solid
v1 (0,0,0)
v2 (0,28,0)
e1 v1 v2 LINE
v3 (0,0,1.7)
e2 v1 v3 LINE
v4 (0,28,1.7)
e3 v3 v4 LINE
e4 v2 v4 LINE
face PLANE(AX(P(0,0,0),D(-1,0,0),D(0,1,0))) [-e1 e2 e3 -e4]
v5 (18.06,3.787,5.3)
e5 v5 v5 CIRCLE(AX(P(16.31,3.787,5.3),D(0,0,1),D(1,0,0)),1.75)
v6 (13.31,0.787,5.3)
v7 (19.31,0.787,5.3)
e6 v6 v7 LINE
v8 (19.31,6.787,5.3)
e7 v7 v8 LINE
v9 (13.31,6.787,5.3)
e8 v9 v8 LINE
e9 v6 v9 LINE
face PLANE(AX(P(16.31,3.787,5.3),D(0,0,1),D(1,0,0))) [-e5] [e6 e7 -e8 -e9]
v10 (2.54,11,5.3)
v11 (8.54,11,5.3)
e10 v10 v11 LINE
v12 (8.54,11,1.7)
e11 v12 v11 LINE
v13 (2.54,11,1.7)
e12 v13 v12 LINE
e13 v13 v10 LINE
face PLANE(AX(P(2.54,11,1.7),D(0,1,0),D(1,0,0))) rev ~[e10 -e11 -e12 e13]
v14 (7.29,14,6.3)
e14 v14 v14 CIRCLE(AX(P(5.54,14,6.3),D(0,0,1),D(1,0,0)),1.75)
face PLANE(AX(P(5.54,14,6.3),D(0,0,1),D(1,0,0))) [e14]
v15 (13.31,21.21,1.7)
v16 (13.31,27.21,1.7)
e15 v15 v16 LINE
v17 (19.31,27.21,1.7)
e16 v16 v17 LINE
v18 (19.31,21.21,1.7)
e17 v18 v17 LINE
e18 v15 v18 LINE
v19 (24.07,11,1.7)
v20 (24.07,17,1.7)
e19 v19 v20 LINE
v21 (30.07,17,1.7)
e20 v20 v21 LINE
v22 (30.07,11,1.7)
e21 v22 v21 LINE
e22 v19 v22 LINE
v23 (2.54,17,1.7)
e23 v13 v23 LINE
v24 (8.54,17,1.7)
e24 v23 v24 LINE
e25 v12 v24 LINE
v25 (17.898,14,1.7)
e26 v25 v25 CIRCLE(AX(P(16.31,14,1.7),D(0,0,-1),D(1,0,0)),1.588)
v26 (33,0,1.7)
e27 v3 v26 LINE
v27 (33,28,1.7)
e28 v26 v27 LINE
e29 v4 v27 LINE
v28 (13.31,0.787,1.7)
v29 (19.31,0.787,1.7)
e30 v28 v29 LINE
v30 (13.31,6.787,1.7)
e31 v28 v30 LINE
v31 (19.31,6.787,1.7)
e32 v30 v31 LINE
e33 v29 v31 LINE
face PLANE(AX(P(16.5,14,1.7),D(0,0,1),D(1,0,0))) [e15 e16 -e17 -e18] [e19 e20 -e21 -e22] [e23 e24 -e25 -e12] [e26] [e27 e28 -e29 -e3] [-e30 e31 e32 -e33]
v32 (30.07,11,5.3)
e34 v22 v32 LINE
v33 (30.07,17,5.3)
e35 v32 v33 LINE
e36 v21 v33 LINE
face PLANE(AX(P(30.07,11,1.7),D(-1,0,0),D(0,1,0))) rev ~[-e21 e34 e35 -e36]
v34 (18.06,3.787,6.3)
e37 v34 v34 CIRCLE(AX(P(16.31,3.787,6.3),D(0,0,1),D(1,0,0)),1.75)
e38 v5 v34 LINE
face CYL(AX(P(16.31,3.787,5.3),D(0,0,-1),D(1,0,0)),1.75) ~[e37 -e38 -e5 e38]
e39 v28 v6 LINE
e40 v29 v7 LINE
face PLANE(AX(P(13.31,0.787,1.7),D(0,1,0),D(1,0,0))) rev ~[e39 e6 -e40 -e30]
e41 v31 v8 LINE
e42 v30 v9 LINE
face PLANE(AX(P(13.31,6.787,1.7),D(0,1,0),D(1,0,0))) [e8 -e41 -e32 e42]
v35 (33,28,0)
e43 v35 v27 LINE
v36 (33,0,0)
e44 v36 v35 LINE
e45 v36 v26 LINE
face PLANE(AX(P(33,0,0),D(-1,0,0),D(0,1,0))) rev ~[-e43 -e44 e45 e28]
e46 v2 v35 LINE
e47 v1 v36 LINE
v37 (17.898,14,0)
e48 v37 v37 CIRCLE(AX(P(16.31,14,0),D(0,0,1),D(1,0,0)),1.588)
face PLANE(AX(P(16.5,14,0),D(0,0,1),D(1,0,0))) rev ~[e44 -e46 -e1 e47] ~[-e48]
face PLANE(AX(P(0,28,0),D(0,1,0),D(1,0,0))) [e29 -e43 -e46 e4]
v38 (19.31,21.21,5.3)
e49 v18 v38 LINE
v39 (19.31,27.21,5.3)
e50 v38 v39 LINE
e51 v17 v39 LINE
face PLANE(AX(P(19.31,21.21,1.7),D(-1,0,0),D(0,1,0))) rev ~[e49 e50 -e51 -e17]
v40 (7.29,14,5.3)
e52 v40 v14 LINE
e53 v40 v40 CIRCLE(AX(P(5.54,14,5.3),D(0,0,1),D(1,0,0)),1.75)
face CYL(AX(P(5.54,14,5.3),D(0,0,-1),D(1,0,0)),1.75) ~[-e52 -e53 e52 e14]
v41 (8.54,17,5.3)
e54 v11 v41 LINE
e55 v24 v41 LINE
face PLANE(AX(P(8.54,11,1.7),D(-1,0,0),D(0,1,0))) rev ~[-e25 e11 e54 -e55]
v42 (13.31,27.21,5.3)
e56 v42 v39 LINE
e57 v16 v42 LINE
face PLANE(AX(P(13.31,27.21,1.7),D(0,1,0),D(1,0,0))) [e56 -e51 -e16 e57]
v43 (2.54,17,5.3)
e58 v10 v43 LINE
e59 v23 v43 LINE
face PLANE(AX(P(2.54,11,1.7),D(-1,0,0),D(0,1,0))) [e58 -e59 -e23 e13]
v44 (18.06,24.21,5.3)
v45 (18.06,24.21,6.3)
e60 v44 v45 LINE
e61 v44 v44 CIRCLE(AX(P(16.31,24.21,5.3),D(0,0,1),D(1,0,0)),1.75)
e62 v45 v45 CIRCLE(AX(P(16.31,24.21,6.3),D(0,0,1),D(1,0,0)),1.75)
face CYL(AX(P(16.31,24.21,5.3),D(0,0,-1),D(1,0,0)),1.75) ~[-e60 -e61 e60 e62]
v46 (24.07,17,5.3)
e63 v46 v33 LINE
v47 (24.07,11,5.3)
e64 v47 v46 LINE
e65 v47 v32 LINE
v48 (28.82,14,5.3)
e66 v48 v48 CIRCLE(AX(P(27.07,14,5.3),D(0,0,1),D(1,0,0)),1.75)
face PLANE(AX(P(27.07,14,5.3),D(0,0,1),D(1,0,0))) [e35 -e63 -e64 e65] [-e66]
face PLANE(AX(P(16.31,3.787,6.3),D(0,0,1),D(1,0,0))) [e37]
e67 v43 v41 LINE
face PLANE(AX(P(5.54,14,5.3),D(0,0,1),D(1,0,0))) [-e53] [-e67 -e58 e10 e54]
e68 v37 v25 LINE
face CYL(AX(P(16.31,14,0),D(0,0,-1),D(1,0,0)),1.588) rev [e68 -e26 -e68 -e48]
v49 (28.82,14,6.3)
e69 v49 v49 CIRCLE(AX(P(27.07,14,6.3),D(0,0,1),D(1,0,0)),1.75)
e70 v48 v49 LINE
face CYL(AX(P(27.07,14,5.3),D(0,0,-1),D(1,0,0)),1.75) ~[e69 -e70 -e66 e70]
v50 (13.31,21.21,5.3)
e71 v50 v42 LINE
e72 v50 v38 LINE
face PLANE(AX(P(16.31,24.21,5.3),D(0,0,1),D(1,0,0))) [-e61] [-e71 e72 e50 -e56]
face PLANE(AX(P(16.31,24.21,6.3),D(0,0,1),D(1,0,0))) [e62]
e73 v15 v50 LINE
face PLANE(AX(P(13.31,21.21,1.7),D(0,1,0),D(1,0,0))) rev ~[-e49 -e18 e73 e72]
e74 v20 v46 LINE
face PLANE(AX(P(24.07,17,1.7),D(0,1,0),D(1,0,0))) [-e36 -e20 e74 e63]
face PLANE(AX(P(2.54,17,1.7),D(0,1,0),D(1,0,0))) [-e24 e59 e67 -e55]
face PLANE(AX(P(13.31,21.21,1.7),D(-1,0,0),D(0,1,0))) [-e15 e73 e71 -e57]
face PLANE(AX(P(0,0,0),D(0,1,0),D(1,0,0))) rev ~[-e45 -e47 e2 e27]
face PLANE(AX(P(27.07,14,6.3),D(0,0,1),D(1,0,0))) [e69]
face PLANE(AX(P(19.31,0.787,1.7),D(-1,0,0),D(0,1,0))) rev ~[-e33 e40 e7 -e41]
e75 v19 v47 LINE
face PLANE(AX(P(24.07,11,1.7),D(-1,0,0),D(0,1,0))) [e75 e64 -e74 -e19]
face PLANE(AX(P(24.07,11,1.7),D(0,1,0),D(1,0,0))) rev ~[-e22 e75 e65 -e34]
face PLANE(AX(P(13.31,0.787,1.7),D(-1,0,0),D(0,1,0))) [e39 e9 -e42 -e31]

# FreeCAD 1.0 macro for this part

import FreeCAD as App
import Part
import Sketcher

V = App.Vector
Q = App.Units.Quantity


def add_polygon(sketch, points):
    """Adds a closed chain of lines whose ends are joined by coincident constraints."""
    first, n = sketch.GeometryCount, len(points)
    for a, b in zip(points, points[1:] + points[:1]):
        sketch.addGeometry(Part.LineSegment(App.Vector(*a, 0), App.Vector(*b, 0)), False)
    for i in range(n):
        sketch.addConstraint(Sketcher.Constraint("Coincident", first + i, 2, first + (i + 1) % n, 1))

doc = App.newDocument("Part")
params = doc.addObject("Spreadsheet::Sheet", "Params")
for row, (alias, value) in enumerate([
    ("sketch1_diameter", "3.5 mm"),
    ("pad1_length", "1 mm"),
    ("sketch2_width", "6 mm"),
    ("pad2_length", "3.6 mm"),
    ("sketch3_diameter", "3.5 mm"),
    ("pad3_length", "1 mm"),
    ("sketch4_width", "6 mm"),
    ("pad4_length", "3.6 mm"),
    ("sketch5_diameter", "3.5 mm"),
    ("pad5_length", "1 mm"),
    ("sketch6_width", "6 mm"),
    ("pad6_length", "3.6 mm"),
    ("pad7_length", "2 mm"),
    ("sketch8_width", "33 mm"),
    ("sketch8_height", "28 mm"),
    ("pad8_length", "1.7 mm"),
    ("sketch9_diameter", "3.5 mm"),
    ("pad9_length", "1 mm"),
    ("sketch10_width", "6 mm"),
    ("pad10_length", "3.6 mm"),
], start=1):
    params.set(f"A{row}", alias)
    params.set(f"B{row}", "=" + value)
    params.setAlias(f"B{row}", alias)

body = doc.addObject("PartDesign::Body", "Body")

sketch1 = body.newObject("Sketcher::SketchObject", "Sketch")
sketch1.AttachmentSupport = (doc.getObject("XY_Plane"), [""])
sketch1.MapMode = "FlatFace"
sketch1.AttachmentOffset = App.Placement(V(0, 0, 3.6), App.Rotation())
sketch1.addGeometry(Part.Circle(V(3, 3, 0), V(0, 0, 1), 1.8), False)
sketch1.addConstraint(Sketcher.Constraint("Diameter", 0, Q("3.5 mm")))
sketch1.addConstraint(Sketcher.Constraint("DistanceX", -1, 1, 0, 3, Q("3 mm")))
sketch1.addConstraint(Sketcher.Constraint("DistanceY", -1, 1, 0, 3, Q("3 mm")))
sketch1.setExpression("Constraints[0]", "Params.sketch1_diameter")
pad1 = body.newObject("PartDesign::Pad", "Pad")
pad1.Profile = sketch1
pad1.setExpression("Length", "Params.pad1_length")
body2 = doc.addObject("PartDesign::Body", "Body001")

sketch2 = body2.newObject("Sketcher::SketchObject", "Sketch001")
sketch2.AttachmentSupport = (doc.getObject("XY_Plane001"), [""])
sketch2.MapMode = "FlatFace"
add_polygon(sketch2, [(0, 6), (0, 0), (6, 0), (6, 6)])
sketch2.addConstraint(Sketcher.Constraint("Vertical", 0))
sketch2.addConstraint(Sketcher.Constraint("Horizontal", 1))
sketch2.addConstraint(Sketcher.Constraint("Vertical", 2))
sketch2.addConstraint(Sketcher.Constraint("Horizontal", 3))
sketch2.addConstraint(Sketcher.Constraint("Coincident", 0, 2, -1, 1))
sketch2.addConstraint(Sketcher.Constraint("Equal", 3, 0))
sketch2.addConstraint(Sketcher.Constraint("DistanceX", 1, 1, 1, 2, Q("6 mm")))
sketch2.setExpression("Constraints[10]", "Params.sketch2_width")
pad2 = body2.newObject("PartDesign::Pad", "Pad001")
pad2.Profile = sketch2
pad2.setExpression("Length", "Params.pad2_length")
doc.recompute()

boolean = body2.newObject("PartDesign::Boolean", "Boolean")
boolean.Type = "Fuse"
boolean.addObjects([body])
body3 = doc.addObject("PartDesign::Body", "Body002")
doc.recompute()

body2.Placement = App.Placement(V(24.07, 11, 1.7), App.Rotation(V(0, 0, 1), 0))
boolean2 = body3.newObject("PartDesign::Boolean", "Boolean001")
boolean2.Type = "Fuse"
boolean2.addObjects([body2])
body4 = doc.addObject("PartDesign::Body", "Body003")

sketch3 = body4.newObject("Sketcher::SketchObject", "Sketch002")
sketch3.AttachmentSupport = (doc.getObject("XY_Plane003"), [""])
sketch3.MapMode = "FlatFace"
sketch3.AttachmentOffset = App.Placement(V(0, 0, 3.6), App.Rotation())
sketch3.addGeometry(Part.Circle(V(3, 3, 0), V(0, 0, 1), 1.8), False)
sketch3.addConstraint(Sketcher.Constraint("Diameter", 0, Q("3.5 mm")))
sketch3.addConstraint(Sketcher.Constraint("DistanceX", -1, 1, 0, 3, Q("3 mm")))
sketch3.addConstraint(Sketcher.Constraint("DistanceY", -1, 1, 0, 3, Q("3 mm")))
sketch3.setExpression("Constraints[0]", "Params.sketch3_diameter")
pad3 = body4.newObject("PartDesign::Pad", "Pad002")
pad3.Profile = sketch3
pad3.setExpression("Length", "Params.pad3_length")
body5 = doc.addObject("PartDesign::Body", "Body004")

sketch4 = body5.newObject("Sketcher::SketchObject", "Sketch003")
sketch4.AttachmentSupport = (doc.getObject("XY_Plane004"), [""])
sketch4.MapMode = "FlatFace"
add_polygon(sketch4, [(0, 6), (0, 0), (6, 0), (6, 6)])
sketch4.addConstraint(Sketcher.Constraint("Vertical", 0))
sketch4.addConstraint(Sketcher.Constraint("Horizontal", 1))
sketch4.addConstraint(Sketcher.Constraint("Vertical", 2))
sketch4.addConstraint(Sketcher.Constraint("Horizontal", 3))
sketch4.addConstraint(Sketcher.Constraint("Coincident", 0, 2, -1, 1))
sketch4.addConstraint(Sketcher.Constraint("Equal", 3, 0))
sketch4.addConstraint(Sketcher.Constraint("DistanceX", 1, 1, 1, 2, Q("6 mm")))
sketch4.setExpression("Constraints[10]", "Params.sketch4_width")
pad4 = body5.newObject("PartDesign::Pad", "Pad003")
pad4.Profile = sketch4
pad4.setExpression("Length", "Params.pad4_length")
doc.recompute()

boolean3 = body5.newObject("PartDesign::Boolean", "Boolean002")
boolean3.Type = "Fuse"
boolean3.addObjects([body4])
body6 = doc.addObject("PartDesign::Body", "Body005")
doc.recompute()

body5.Placement = App.Placement(V(13.31, 21.21, 1.7), App.Rotation(V(0, 0, 1), 0))
boolean4 = body6.newObject("PartDesign::Boolean", "Boolean003")
boolean4.Type = "Fuse"
boolean4.addObjects([body5])
body7 = doc.addObject("PartDesign::Body", "Body006")

sketch5 = body7.newObject("Sketcher::SketchObject", "Sketch004")
sketch5.AttachmentSupport = (doc.getObject("XY_Plane006"), [""])
sketch5.MapMode = "FlatFace"
sketch5.AttachmentOffset = App.Placement(V(0, 0, 3.6), App.Rotation())
sketch5.addGeometry(Part.Circle(V(3, 3, 0), V(0, 0, 1), 1.8), False)
sketch5.addConstraint(Sketcher.Constraint("Diameter", 0, Q("3.5 mm")))
sketch5.addConstraint(Sketcher.Constraint("DistanceX", -1, 1, 0, 3, Q("3 mm")))
sketch5.addConstraint(Sketcher.Constraint("DistanceY", -1, 1, 0, 3, Q("3 mm")))
sketch5.setExpression("Constraints[0]", "Params.sketch5_diameter")
pad5 = body7.newObject("PartDesign::Pad", "Pad004")
pad5.Profile = sketch5
pad5.setExpression("Length", "Params.pad5_length")
body8 = doc.addObject("PartDesign::Body", "Body007")

sketch6 = body8.newObject("Sketcher::SketchObject", "Sketch005")
sketch6.AttachmentSupport = (doc.getObject("XY_Plane007"), [""])
sketch6.MapMode = "FlatFace"
add_polygon(sketch6, [(0, 6), (0, 0), (6, 0), (6, 6)])
sketch6.addConstraint(Sketcher.Constraint("Vertical", 0))
sketch6.addConstraint(Sketcher.Constraint("Horizontal", 1))
sketch6.addConstraint(Sketcher.Constraint("Vertical", 2))
sketch6.addConstraint(Sketcher.Constraint("Horizontal", 3))
sketch6.addConstraint(Sketcher.Constraint("Coincident", 0, 2, -1, 1))
sketch6.addConstraint(Sketcher.Constraint("Equal", 3, 0))
sketch6.addConstraint(Sketcher.Constraint("DistanceX", 1, 1, 1, 2, Q("6 mm")))
sketch6.setExpression("Constraints[10]", "Params.sketch6_width")
pad6 = body8.newObject("PartDesign::Pad", "Pad005")
pad6.Profile = sketch6
pad6.setExpression("Length", "Params.pad6_length")
doc.recompute()

boolean5 = body8.newObject("PartDesign::Boolean", "Boolean004")
boolean5.Type = "Fuse"
boolean5.addObjects([body7])
body9 = doc.addObject("PartDesign::Body", "Body008")
doc.recompute()

body8.Placement = App.Placement(V(13.31, 0.787, 1.7), App.Rotation(V(0, 0, 1), 0))
boolean6 = body9.newObject("PartDesign::Boolean", "Boolean005")
boolean6.Type = "Fuse"
boolean6.addObjects([body8])
body10 = doc.addObject("PartDesign::Body", "Body009")

sketch7 = body10.newObject("Sketcher::SketchObject", "Sketch006")
sketch7.AttachmentSupport = (doc.getObject("XY_Plane009"), [""])
sketch7.MapMode = "FlatFace"
sketch7.addGeometry(Part.Circle(V(16.3, 14, 0), V(0, 0, 1), 1.6), False)
sketch7.addConstraint(Sketcher.Constraint("Diameter", 0, Q("3.176 mm")))
sketch7.addConstraint(Sketcher.Constraint("DistanceY", -1, 1, 0, 3, Q("14 mm")))
sketch7.addConstraint(Sketcher.Constraint("DistanceX", -1, 1, 0, 3, Q("16.31 mm")))
pad7 = body10.newObject("PartDesign::Pad", "Pad006")
pad7.Profile = sketch7
pad7.setExpression("Length", "Params.pad7_length")
body11 = doc.addObject("PartDesign::Body", "Body010")

sketch8 = body11.newObject("Sketcher::SketchObject", "Sketch007")
sketch8.AttachmentSupport = (doc.getObject("XY_Plane010"), [""])
sketch8.MapMode = "FlatFace"
add_polygon(sketch8, [(0, 28), (0, 0), (33, 0), (33, 28)])
sketch8.addConstraint(Sketcher.Constraint("Vertical", 0))
sketch8.addConstraint(Sketcher.Constraint("Horizontal", 1))
sketch8.addConstraint(Sketcher.Constraint("Vertical", 2))
sketch8.addConstraint(Sketcher.Constraint("Horizontal", 3))
sketch8.addConstraint(Sketcher.Constraint("Coincident", 0, 2, -1, 1))
sketch8.addConstraint(Sketcher.Constraint("DistanceX", 1, 1, 1, 2, Q("33 mm")))
sketch8.addConstraint(Sketcher.Constraint("DistanceY", 0, 2, 0, 1, Q("28 mm")))
sketch8.setExpression("Constraints[9]", "Params.sketch8_width")
sketch8.setExpression("Constraints[10]", "Params.sketch8_height")
pad8 = body11.newObject("PartDesign::Pad", "Pad007")
pad8.Profile = sketch8
pad8.setExpression("Length", "Params.pad8_length")
doc.recompute()

boolean7 = body11.newObject("PartDesign::Boolean", "Boolean006")
boolean7.Type = "Cut"
boolean7.addObjects([body10])
body12 = doc.addObject("PartDesign::Body", "Body011")

sketch9 = body12.newObject("Sketcher::SketchObject", "Sketch008")
sketch9.AttachmentSupport = (doc.getObject("XY_Plane011"), [""])
sketch9.MapMode = "FlatFace"
sketch9.AttachmentOffset = App.Placement(V(0, 0, 3.6), App.Rotation())
sketch9.addGeometry(Part.Circle(V(3, 3, 0), V(0, 0, 1), 1.8), False)
sketch9.addConstraint(Sketcher.Constraint("Diameter", 0, Q("3.5 mm")))
sketch9.addConstraint(Sketcher.Constraint("DistanceX", -1, 1, 0, 3, Q("3 mm")))
sketch9.addConstraint(Sketcher.Constraint("DistanceY", -1, 1, 0, 3, Q("3 mm")))
sketch9.setExpression("Constraints[0]", "Params.sketch9_diameter")
pad9 = body12.newObject("PartDesign::Pad", "Pad008")
pad9.Profile = sketch9
pad9.setExpression("Length", "Params.pad9_length")
body13 = doc.addObject("PartDesign::Body", "Body012")

sketch10 = body13.newObject("Sketcher::SketchObject", "Sketch009")
sketch10.AttachmentSupport = (doc.getObject("XY_Plane012"), [""])
sketch10.MapMode = "FlatFace"
add_polygon(sketch10, [(0, 6), (0, 0), (6, 0), (6, 6)])
sketch10.addConstraint(Sketcher.Constraint("Vertical", 0))
sketch10.addConstraint(Sketcher.Constraint("Horizontal", 1))
sketch10.addConstraint(Sketcher.Constraint("Vertical", 2))
sketch10.addConstraint(Sketcher.Constraint("Horizontal", 3))
sketch10.addConstraint(Sketcher.Constraint("Coincident", 0, 2, -1, 1))
sketch10.addConstraint(Sketcher.Constraint("Equal", 3, 0))
sketch10.addConstraint(Sketcher.Constraint("DistanceX", 1, 1, 1, 2, Q("6 mm")))
sketch10.setExpression("Constraints[10]", "Params.sketch10_width")
pad10 = body13.newObject("PartDesign::Pad", "Pad009")
pad10.Profile = sketch10
pad10.setExpression("Length", "Params.pad10_length")
doc.recompute()

boolean8 = body13.newObject("PartDesign::Boolean", "Boolean007")
boolean8.Type = "Fuse"
boolean8.addObjects([body12])
body14 = doc.addObject("PartDesign::Body", "Body013")
body14.AllowCompound = True
doc.recompute()

body13.Placement = App.Placement(V(2.54, 11, 1.7), App.Rotation(V(0, 0, 1), 0))
boolean9 = body14.newObject("PartDesign::Boolean", "Boolean008")
boolean9.Type = "Fuse"
boolean9.addObjects([body13])
doc.recompute()

boolean10 = body14.newObject("PartDesign::Boolean", "Boolean009")
boolean10.Type = "Fuse"
boolean10.addObjects([body3])
doc.recompute()

boolean11 = body14.newObject("PartDesign::Boolean", "Boolean010")
boolean11.Type = "Fuse"
boolean11.addObjects([body6])
doc.recompute()

boolean12 = body14.newObject("PartDesign::Boolean", "Boolean011")
boolean12.Type = "Fuse"
boolean12.addObjects([body9])
doc.recompute()

boolean13 = body14.newObject("PartDesign::Boolean", "Boolean012")
boolean13.Type = "Fuse"
boolean13.addObjects([body11])

doc.recompute()
